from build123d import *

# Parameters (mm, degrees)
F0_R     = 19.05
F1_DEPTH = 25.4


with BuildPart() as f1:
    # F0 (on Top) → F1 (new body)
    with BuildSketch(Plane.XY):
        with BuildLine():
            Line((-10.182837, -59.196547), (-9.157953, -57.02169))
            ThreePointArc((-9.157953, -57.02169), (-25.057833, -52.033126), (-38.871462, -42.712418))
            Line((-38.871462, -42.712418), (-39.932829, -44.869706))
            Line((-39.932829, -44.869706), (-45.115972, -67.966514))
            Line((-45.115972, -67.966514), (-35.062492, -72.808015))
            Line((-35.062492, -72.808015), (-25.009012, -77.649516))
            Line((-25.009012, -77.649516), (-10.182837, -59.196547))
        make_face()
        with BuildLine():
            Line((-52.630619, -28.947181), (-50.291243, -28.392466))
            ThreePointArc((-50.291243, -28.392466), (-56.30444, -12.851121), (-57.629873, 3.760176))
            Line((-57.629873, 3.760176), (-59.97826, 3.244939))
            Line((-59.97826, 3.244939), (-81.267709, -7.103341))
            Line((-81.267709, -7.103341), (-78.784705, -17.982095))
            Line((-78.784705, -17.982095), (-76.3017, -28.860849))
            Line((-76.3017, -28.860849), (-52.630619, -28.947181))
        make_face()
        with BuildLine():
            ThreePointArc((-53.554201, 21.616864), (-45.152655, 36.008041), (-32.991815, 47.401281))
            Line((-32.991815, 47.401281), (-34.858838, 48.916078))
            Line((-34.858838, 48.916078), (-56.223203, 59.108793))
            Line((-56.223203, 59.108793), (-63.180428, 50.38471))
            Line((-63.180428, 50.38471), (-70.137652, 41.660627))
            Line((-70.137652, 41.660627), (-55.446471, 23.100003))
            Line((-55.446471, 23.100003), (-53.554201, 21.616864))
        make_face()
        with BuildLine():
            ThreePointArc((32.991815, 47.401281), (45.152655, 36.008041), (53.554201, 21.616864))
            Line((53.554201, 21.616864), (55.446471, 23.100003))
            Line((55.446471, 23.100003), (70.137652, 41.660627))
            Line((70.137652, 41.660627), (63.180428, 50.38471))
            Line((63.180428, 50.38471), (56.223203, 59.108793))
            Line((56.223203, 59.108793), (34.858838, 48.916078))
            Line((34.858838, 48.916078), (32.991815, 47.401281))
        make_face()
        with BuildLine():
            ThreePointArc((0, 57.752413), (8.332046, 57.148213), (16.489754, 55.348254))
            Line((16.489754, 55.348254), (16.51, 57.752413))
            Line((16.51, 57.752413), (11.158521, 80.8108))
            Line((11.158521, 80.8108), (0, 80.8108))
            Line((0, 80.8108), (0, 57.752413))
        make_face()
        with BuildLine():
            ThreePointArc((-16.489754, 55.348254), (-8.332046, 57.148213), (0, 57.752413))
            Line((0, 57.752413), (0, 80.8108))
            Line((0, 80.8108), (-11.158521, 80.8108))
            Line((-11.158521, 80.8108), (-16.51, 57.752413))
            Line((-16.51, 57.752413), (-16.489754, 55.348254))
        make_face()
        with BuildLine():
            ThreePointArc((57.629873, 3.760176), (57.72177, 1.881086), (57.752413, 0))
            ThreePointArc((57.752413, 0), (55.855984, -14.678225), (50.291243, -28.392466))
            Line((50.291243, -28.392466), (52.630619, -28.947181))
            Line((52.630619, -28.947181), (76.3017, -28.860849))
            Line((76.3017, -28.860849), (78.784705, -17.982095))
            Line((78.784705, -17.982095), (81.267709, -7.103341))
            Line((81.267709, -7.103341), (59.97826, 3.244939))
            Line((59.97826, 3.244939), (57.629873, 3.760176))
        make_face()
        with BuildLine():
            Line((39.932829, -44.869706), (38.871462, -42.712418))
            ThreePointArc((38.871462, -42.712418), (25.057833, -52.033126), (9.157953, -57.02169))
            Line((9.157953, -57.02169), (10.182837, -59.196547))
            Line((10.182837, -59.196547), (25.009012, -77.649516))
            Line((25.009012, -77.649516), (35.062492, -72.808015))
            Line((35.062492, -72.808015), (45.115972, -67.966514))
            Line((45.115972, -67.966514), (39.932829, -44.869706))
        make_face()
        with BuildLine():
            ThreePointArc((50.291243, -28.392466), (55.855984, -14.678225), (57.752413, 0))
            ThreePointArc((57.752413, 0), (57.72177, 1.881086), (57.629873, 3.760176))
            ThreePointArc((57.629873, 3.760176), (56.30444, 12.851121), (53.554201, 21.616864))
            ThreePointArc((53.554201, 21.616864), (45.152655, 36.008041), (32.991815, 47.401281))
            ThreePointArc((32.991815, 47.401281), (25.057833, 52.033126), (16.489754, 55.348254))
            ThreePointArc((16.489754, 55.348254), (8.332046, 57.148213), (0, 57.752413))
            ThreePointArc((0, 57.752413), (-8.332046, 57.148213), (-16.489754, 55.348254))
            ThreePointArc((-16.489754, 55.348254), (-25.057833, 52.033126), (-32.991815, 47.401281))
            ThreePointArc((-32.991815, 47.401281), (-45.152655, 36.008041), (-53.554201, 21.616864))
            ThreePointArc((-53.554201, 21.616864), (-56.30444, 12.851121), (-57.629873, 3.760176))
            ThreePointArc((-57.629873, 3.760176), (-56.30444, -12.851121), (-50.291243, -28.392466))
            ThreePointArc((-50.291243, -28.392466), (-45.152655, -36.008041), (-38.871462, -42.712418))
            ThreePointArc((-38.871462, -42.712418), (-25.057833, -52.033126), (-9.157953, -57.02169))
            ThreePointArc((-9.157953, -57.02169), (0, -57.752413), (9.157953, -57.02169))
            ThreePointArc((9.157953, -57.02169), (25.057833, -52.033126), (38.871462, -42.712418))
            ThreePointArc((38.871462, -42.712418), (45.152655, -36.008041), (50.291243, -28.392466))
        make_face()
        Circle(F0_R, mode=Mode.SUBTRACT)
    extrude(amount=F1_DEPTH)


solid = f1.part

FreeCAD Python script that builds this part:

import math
import FreeCAD as App
import Part
import Sketcher
Q = App.Units.Quantity

doc = App.newDocument("Part")
body = doc.addObject("PartDesign::Body", "Body")

# Sketch on XY plane
sketch1 = body.newObject("Sketcher::SketchObject", "Sketch")
sketch1.AttachmentSupport = (doc.getObject("XY_Plane"), [""])
sketch1.MapMode = "FlatFace"
sketch1.addGeometry([
    Part.LineSegment(App.Vector(-10.182837, -59.196547, 0), App.Vector(-9.157953, -57.02169, 0)),  # 0
    Part.ArcOfCircle(Part.Circle(App.Vector(0, 0.000018, 0), App.Vector(0, 0, 1), 57.752431), math.radians(-99.124054), math.radians(-80.875946)),  # 1
    Part.LineSegment(App.Vector(9.157953, -57.02169, 0), App.Vector(10.182837, -59.196547, 0)),  # 2
    Part.LineSegment(App.Vector(10.182837, -59.196547, 0), App.Vector(25.009012, -77.649516, 0)),  # 3
    Part.LineSegment(App.Vector(25.009012, -77.649516, 0), App.Vector(45.115972, -67.966514, 0)),  # 4
    Part.LineSegment(App.Vector(45.115972, -67.966514, 0), App.Vector(39.932829, -44.869706, 0)),  # 5
    Part.LineSegment(App.Vector(39.932829, -44.869706, 0), App.Vector(38.871462, -42.712418, 0)),  # 6
    Part.ArcOfCircle(Part.Circle(App.Vector(0.000023, -0.000017, 0), App.Vector(0, 0, 1), 57.752385), math.radians(-47.695491), math.radians(-29.447368)),  # 7
    Part.LineSegment(App.Vector(50.291243, -28.392466, 0), App.Vector(52.630619, -28.947181, 0)),  # 8
    Part.LineSegment(App.Vector(52.630619, -28.947181, 0), App.Vector(76.3017, -28.860849, 0)),  # 9
    Part.LineSegment(App.Vector(76.3017, -28.860849, 0), App.Vector(78.784705, -17.982095, 0)),  # 10
    Part.LineSegment(App.Vector(78.784705, -17.982095, 0), App.Vector(81.267709, -7.103341, 0)),  # 11
    Part.LineSegment(App.Vector(81.267709, -7.103341, 0), App.Vector(59.97826, 3.244939, 0)),  # 12
    Part.LineSegment(App.Vector(59.97826, 3.244939, 0), App.Vector(57.629873, 3.760176, 0)),  # 13
    Part.ArcOfCircle(Part.Circle(App.Vector(0.000036, 0.00001, 0), App.Vector(0, 0, 1), 57.752376), math.radians(3.733078), math.radians(21.981204)),  # 14
    Part.LineSegment(App.Vector(53.554201, 21.616864, 0), App.Vector(55.446471, 23.100003, 0)),  # 15
    Part.LineSegment(App.Vector(55.446471, 23.100003, 0), App.Vector(70.137652, 41.660627, 0)),  # 16
    Part.LineSegment(App.Vector(70.137652, 41.660627, 0), App.Vector(63.180428, 50.38471, 0)),  # 17
    Part.LineSegment(App.Vector(63.180428, 50.38471, 0), App.Vector(56.223203, 59.108793, 0)),  # 18
    Part.LineSegment(App.Vector(56.223203, 59.108793, 0), App.Vector(34.858838, 48.916078, 0)),  # 19
    Part.LineSegment(App.Vector(34.858838, 48.916078, 0), App.Vector(32.991815, 47.401281, 0)),  # 20
    Part.ArcOfCircle(Part.Circle(App.Vector(-0.000015, -0.000036, 0), App.Vector(0, 0, 1), 57.752452), math.radians(55.161665), math.radians(73.409767)),  # 21
    Part.LineSegment(App.Vector(16.489754, 55.348254, 0), App.Vector(16.51, 57.752413, 0)),  # 22
    Part.LineSegment(App.Vector(16.51, 57.752413, 0), App.Vector(11.158521, 80.8108, 0)),  # 23
    Part.LineSegment(App.Vector(11.158521, 80.8108, 0), App.Vector(-11.158521, 80.8108, 0)),  # 24
    Part.LineSegment(App.Vector(-11.158521, 80.8108, 0), App.Vector(-16.51, 57.752413, 0)),  # 25
    Part.LineSegment(App.Vector(-16.51, 57.752413, 0), App.Vector(-16.489754, 55.348254, 0)),  # 26
    Part.ArcOfCircle(Part.Circle(App.Vector(0.000015, -0.000036, 0), App.Vector(0, 0, 1), 57.752452), math.radians(106.590233), math.radians(124.838335)),  # 27
    Part.LineSegment(App.Vector(-32.991815, 47.401281, 0), App.Vector(-34.858838, 48.916078, 0)),  # 28
    Part.LineSegment(App.Vector(-34.858838, 48.916078, 0), App.Vector(-56.223203, 59.108793, 0)),  # 29
    Part.LineSegment(App.Vector(-56.223203, 59.108793, 0), App.Vector(-63.180428, 50.38471, 0)),  # 30
    Part.LineSegment(App.Vector(-63.180428, 50.38471, 0), App.Vector(-70.137652, 41.660627, 0)),  # 31
    Part.LineSegment(App.Vector(-70.137652, 41.660627, 0), App.Vector(-55.446471, 23.100003, 0)),  # 32
    Part.LineSegment(App.Vector(-55.446471, 23.100003, 0), App.Vector(-53.554201, 21.616864, 0)),  # 33
    Part.ArcOfCircle(Part.Circle(App.Vector(-0.000036, 0.00001, 0), App.Vector(0, 0, 1), 57.752376), math.radians(158.018796), math.radians(176.266922)),  # 34
    Part.LineSegment(App.Vector(-57.629873, 3.760176, 0), App.Vector(-59.97826, 3.244939, 0)),  # 35
    Part.LineSegment(App.Vector(-59.97826, 3.244939, 0), App.Vector(-81.267709, -7.103341, 0)),  # 36
    Part.LineSegment(App.Vector(-81.267709, -7.103341, 0), App.Vector(-78.784705, -17.982095, 0)),  # 37
    Part.LineSegment(App.Vector(-78.784705, -17.982095, 0), App.Vector(-76.3017, -28.860849, 0)),  # 38
    Part.LineSegment(App.Vector(-76.3017, -28.860849, 0), App.Vector(-52.630619, -28.947181, 0)),  # 39
    Part.LineSegment(App.Vector(-52.630619, -28.947181, 0), App.Vector(-50.291243, -28.392466, 0)),  # 40
    Part.ArcOfCircle(Part.Circle(App.Vector(-0.000023, -0.000017, 0), App.Vector(0, 0, 1), 57.752385), math.radians(-150.552632), math.radians(-132.304509)),  # 41
    Part.LineSegment(App.Vector(-38.871462, -42.712418, 0), App.Vector(-39.932829, -44.869706, 0)),  # 42
    Part.LineSegment(App.Vector(-39.932829, -44.869706, 0), App.Vector(-45.115972, -67.966514, 0)),  # 43
    Part.LineSegment(App.Vector(-45.115972, -67.966514, 0), App.Vector(-25.009012, -77.649516, 0)),  # 44
    Part.LineSegment(App.Vector(-25.009012, -77.649516, 0), App.Vector(-10.182837, -59.196547, 0)),  # 45
    Part.Circle(App.Vector(0, 0, 0), App.Vector(0, 0, 1), 19.05),  # 46
], False)
sketch1.addConstraint([
    Sketcher.Constraint("Coincident", 0, 2, 1, 1),
    Sketcher.Constraint("Coincident", 1, 2, 2, 1),
    Sketcher.Constraint("Coincident", 2, 2, 3, 1),
    Sketcher.Constraint("Coincident", 3, 2, 4, 1),
    Sketcher.Constraint("Coincident", 4, 2, 5, 1),
    Sketcher.Constraint("Coincident", 5, 2, 6, 1),
    Sketcher.Constraint("Coincident", 6, 2, 7, 1),
    Sketcher.Constraint("Coincident", 7, 2, 8, 1),
    Sketcher.Constraint("Coincident", 8, 2, 9, 1),
    Sketcher.Constraint("Coincident", 9, 2, 10, 1),
    Sketcher.Constraint("Coincident", 10, 2, 11, 1),
    Sketcher.Constraint("Coincident", 11, 2, 12, 1),
    Sketcher.Constraint("Coincident", 12, 2, 13, 1),
    Sketcher.Constraint("Coincident", 13, 2, 14, 1),
    Sketcher.Constraint("Coincident", 14, 2, 15, 1),
    Sketcher.Constraint("Coincident", 15, 2, 16, 1),
    Sketcher.Constraint("Coincident", 16, 2, 17, 1),
    Sketcher.Constraint("Coincident", 17, 2, 18, 1),
    Sketcher.Constraint("Coincident", 18, 2, 19, 1),
    Sketcher.Constraint("Coincident", 19, 2, 20, 1),
    Sketcher.Constraint("Coincident", 20, 2, 21, 1),
    Sketcher.Constraint("Coincident", 21, 2, 22, 1),
    Sketcher.Constraint("Coincident", 22, 2, 23, 1),
    Sketcher.Constraint("Coincident", 23, 2, 24, 1),
    Sketcher.Constraint("Coincident", 24, 2, 25, 1),
    Sketcher.Constraint("Coincident", 25, 2, 26, 1),
    Sketcher.Constraint("Coincident", 26, 2, 27, 1),
    Sketcher.Constraint("Coincident", 27, 2, 28, 1),
    Sketcher.Constraint("Coincident", 28, 2, 29, 1),
    Sketcher.Constraint("Coincident", 29, 2, 30, 1),
    Sketcher.Constraint("Coincident", 30, 2, 31, 1),
    Sketcher.Constraint("Coincident", 31, 2, 32, 1),
    Sketcher.Constraint("Coincident", 32, 2, 33, 1),
    Sketcher.Constraint("Coincident", 33, 2, 34, 1),
    Sketcher.Constraint("Coincident", 34, 2, 35, 1),
    Sketcher.Constraint("Coincident", 35, 2, 36, 1),
    Sketcher.Constraint("Coincident", 36, 2, 37, 1),
    Sketcher.Constraint("Coincident", 37, 2, 38, 1),
    Sketcher.Constraint("Coincident", 38, 2, 39, 1),
    Sketcher.Constraint("Coincident", 39, 2, 40, 1),
    Sketcher.Constraint("Coincident", 40, 2, 41, 1),
    Sketcher.Constraint("Coincident", 41, 2, 42, 1),
    Sketcher.Constraint("Coincident", 42, 2, 43, 1),
    Sketcher.Constraint("Coincident", 43, 2, 44, 1),
    Sketcher.Constraint("Coincident", 44, 2, 45, 1),
    Sketcher.Constraint("Coincident", 45, 2, 0, 1),
    Sketcher.Constraint("Horizontal", 24),
    Sketcher.Constraint("Coincident", 46, 3, -1, 1),
    Sketcher.Constraint("Equal", 21, 27),
    Sketcher.Constraint("Equal", 14, 34),
    Sketcher.Constraint("Equal", 7, 41),
    Sketcher.Constraint("Symmetric", 21, 3, 27, 3, -2),
    Sketcher.Constraint("Symmetric", 14, 3, 34, 3, -2),
    Sketcher.Constraint("Symmetric", 7, 3, 41, 3, -2),
    Sketcher.Constraint("Symmetric", 0, 2, 1, 2, -2),
    Sketcher.Constraint("Symmetric", 22, 2, 25, 2, -2),
    Sketcher.Constraint("Symmetric", 19, 2, 28, 2, -2),
    Sketcher.Constraint("Symmetric", 18, 2, 29, 2, -2),
    Sketcher.Constraint("Symmetric", 17, 2, 30, 2, -2),
    Sketcher.Constraint("Symmetric", 16, 2, 31, 2, -2),
    Sketcher.Constraint("Symmetric", 15, 2, 32, 2, -2),
    Sketcher.Constraint("Symmetric", 12, 2, 35, 2, -2),
    Sketcher.Constraint("Symmetric", 11, 2, 36, 2, -2),
    Sketcher.Constraint("Symmetric", 10, 2, 37, 2, -2),
    Sketcher.Constraint("Symmetric", 9, 2, 38, 2, -2),
    Sketcher.Constraint("Symmetric", 8, 2, 39, 2, -2),
    Sketcher.Constraint("Symmetric", 5, 2, 42, 2, -2),
    Sketcher.Constraint("Symmetric", 4, 2, 43, 2, -2),
    Sketcher.Constraint("Symmetric", 3, 2, 44, 2, -2),
    Sketcher.Constraint("Symmetric", 2, 2, 45, 2, -2),
    Sketcher.Constraint("Parallel", 10, 11),
    Sketcher.Constraint("Parallel", 17, 18),
    Sketcher.Constraint("Horizontal", 21, 2, 26, 2),
    Sketcher.Constraint("Horizontal", 20, 2, 27, 2),
    Sketcher.Constraint("Horizontal", 14, 2, 33, 2),
    Sketcher.Constraint("Horizontal", 13, 2, 34, 2),
    Sketcher.Constraint("Horizontal", 7, 2, 40, 2),
    Sketcher.Constraint("Horizontal", 6, 2, 41, 2),
    Sketcher.Constraint("Equal", 3, 5),
    Sketcher.Constraint("Equal", 2, 6),
    Sketcher.Constraint("Equal", 6, 8),
    Sketcher.Constraint("Equal", 5, 9),
    Sketcher.Constraint("Equal", 10, 11),
    Sketcher.Constraint("Equal", 9, 12),
    Sketcher.Constraint("Equal", 8, 13),
    Sketcher.Constraint("Equal", 13, 15),
    Sketcher.Constraint("Equal", 12, 16),
    Sketcher.Constraint("Equal", 11, 17),
    Sketcher.Constraint("Equal", 17, 18),
    Sketcher.Constraint("Equal", 16, 19),
    Sketcher.Constraint("Equal", 15, 20),
    Sketcher.Constraint("Equal", 20, 22),
    Sketcher.Constraint("Equal", 19, 23),
    Sketcher.Constraint("Equal", 23, 25),
    Sketcher.Constraint("Diameter", 46, Q("1.5 in")),
    Sketcher.Constraint("DistanceX", 25, 2, 22, 2, Q("1.3 in")),
    Sketcher.Constraint("Radius", 1, 57.752431),
    Sketcher.Constraint("Radius", 21, 57.752452),
    Sketcher.Constraint("Radius", 7, 57.752385),
    Sketcher.Constraint("Radius", 14, 57.752376),
    Sketcher.Constraint("DistanceX", 23, 2, 18, 2, Q("1.7742001 in")),
    Sketcher.Constraint("DistanceX", -1, 1, 9, 2, 76.3017),
    Sketcher.Constraint("DistanceX", -1, 1, 14, 2, 53.554201),
    Sketcher.Constraint("DistanceY", -1, 1, 23, 2, 80.8108),
    Sketcher.Constraint("DistanceY", 3, 2, 6, 2, 34.937098),
    Sketcher.Constraint("DistanceY", 10, 2, 15, 2, 41.082098),
    Sketcher.Constraint("DistanceX", 34, 2, 32, 2, 2.183402),
    Sketcher.Constraint("Distance", 3, 23.671238),
    Sketcher.Constraint("Distance", 10, 11.158522),
    Sketcher.Constraint("DistanceX", 24, 2, 24, 1, 22.317042),
    Sketcher.Constraint("DistanceY", 0, 2, -1, 1, 57.02169),
    Sketcher.Constraint("DistanceX", -1, 1, 3, 2, 25.009012),
    Sketcher.Constraint("DistanceX", -1, 1, 5, 2, 39.932829),
    Sketcher.Constraint("DistanceY", 8, 2, -1, 1, 28.947181),
    Sketcher.Constraint("DistanceY", 9, 2, -1, 1, 28.860849),
    Sketcher.Constraint("DistanceX", -1, 1, 11, 2, 81.267709),
    Sketcher.Constraint("DistanceX", -1, 1, 12, 2, 59.97826),
    Sketcher.Constraint("DistanceX", -1, 1, 15, 2, 55.446471),
    Sketcher.Constraint("DistanceY", -1, 1, 17, 2, 50.38471),
    Sketcher.Constraint("DistanceY", -1, 1, 20, 2, 47.401281),
    Sketcher.Constraint("DistanceX", 41, 2, -1, 1, 38.871462),
    Sketcher.Constraint("DistanceX", 0, 2, 21, 3, 9.157938),
    Sketcher.Constraint("DistanceX", 0, 2, 41, 3, 9.15793),
    Sketcher.Constraint("DistanceX", 0, 2, 2, 2, 19.34079),
    Sketcher.Constraint("DistanceY", 2, 2, 27, 3, 59.196511),
    Sketcher.Constraint("DistanceY", 2, 2, 7, 3, 59.19653),
    Sketcher.Constraint("DistanceX", 3, 2, 4, 2, 20.10696),
    Sketcher.Constraint("DistanceY", 4, 2, 27, 3, 67.966478),
])
pad1 = body.newObject("PartDesign::Pad", "Pad")
pad1.Profile = sketch1
pad1.Length = Q("1 in")

doc.recompute()
